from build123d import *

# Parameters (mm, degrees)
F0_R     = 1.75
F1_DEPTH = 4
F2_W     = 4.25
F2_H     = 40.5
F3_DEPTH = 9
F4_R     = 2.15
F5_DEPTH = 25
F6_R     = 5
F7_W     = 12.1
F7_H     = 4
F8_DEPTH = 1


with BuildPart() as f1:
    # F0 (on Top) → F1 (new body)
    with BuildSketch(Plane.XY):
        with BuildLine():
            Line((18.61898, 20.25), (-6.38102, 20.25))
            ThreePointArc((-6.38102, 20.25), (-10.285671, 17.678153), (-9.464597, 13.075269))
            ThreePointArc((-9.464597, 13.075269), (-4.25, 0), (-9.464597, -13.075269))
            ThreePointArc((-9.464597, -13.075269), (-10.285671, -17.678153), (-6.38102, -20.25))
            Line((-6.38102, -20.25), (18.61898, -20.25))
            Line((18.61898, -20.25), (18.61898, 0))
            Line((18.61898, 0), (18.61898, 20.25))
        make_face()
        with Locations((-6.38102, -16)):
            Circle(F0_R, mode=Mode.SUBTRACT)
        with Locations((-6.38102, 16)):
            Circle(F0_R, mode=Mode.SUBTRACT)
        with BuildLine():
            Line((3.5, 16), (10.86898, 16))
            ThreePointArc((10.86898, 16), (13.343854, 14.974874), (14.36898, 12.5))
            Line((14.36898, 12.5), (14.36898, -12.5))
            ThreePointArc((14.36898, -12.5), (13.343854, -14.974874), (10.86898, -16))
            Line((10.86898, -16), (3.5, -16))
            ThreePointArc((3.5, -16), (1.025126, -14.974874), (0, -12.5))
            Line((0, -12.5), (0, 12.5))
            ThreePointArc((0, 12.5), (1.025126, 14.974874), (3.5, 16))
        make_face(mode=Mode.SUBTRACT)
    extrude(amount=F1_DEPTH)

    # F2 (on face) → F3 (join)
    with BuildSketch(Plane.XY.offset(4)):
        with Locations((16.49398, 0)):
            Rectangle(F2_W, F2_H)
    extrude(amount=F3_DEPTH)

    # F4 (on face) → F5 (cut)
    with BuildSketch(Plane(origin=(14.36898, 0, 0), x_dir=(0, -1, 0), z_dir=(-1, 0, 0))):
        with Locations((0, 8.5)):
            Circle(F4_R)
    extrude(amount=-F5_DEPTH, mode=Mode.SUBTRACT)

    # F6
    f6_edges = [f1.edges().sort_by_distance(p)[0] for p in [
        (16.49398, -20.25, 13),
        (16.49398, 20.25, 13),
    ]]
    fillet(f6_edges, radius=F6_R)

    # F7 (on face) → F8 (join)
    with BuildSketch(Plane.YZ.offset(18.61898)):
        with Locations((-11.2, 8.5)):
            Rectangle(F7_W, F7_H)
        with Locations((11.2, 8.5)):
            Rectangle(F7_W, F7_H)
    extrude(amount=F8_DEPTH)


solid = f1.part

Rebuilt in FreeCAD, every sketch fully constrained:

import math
import FreeCAD as App
import Part
import Sketcher
from FreeCAD import Vector
Q = App.Units.Quantity


def edges_at(feature, points):
    """Names of the edges that pass closest to the given points."""
    edges = feature.Shape.Edges
    near = lambda p: min(range(len(edges)), key=lambda i: edges[i].distToShape(Part.Vertex(*p))[0])
    return sorted({f"Edge{near(p) + 1}" for p in points})

doc = App.newDocument("Part")
body = doc.addObject("PartDesign::Body", "Body")

sketch1 = doc.addObject("Sketcher::SketchObject", "Sketch")
body.addObject(sketch1)
sketch1.AttachmentSupport = (doc.XY_Plane, [""])
sketch1.MapMode = "FlatFace"
sketch1.addGeometry(Part.LineSegment(Vector(18.61898, 20.25, 0), Vector(-6.38102, 20.25, 0)), False)
sketch1.addGeometry(Part.ArcOfCircle(Part.Circle(Vector(-6.38102, 16, 0), Vector(0, 0, 1), 4.25), math.radians(90.000006), math.radians(223.485578)), False)
sketch1.addGeometry(Part.ArcOfCircle(Part.Circle(Vector(-23.25, 0, 0), Vector(0, 0, 1), 19), math.radians(-43.485586), math.radians(43.485586)), False)
sketch1.addGeometry(Part.ArcOfCircle(Part.Circle(Vector(-6.38102, -16, 0), Vector(0, 0, 1), 4.25), math.radians(136.514422), math.radians(269.999994)), False)
sketch1.addGeometry(Part.LineSegment(Vector(-6.38102, -20.25, 0), Vector(18.61898, -20.25, 0)), False)
sketch1.addGeometry(Part.LineSegment(Vector(18.61898, -20.25, 0), Vector(18.61898, 20.25, 0)), False)
sketch1.addGeometry(Part.Circle(Vector(-6.38102, -16, 0), Vector(0, 0, 1), 1.75), False)
sketch1.addGeometry(Part.Circle(Vector(-6.38102, 16, 0), Vector(0, 0, 1), 1.75), False)
sketch1.addGeometry(Part.ArcOfCircle(Part.Circle(Vector(3.499999, 12.500001, 0), Vector(0, 0, 1), 3.499999), math.radians(89.999985), math.radians(180.000015)), False)
sketch1.addGeometry(Part.LineSegment(Vector(3.5, 16, 0), Vector(10.86898, 16, 0)), False)
sketch1.addGeometry(Part.ArcOfCircle(Part.Circle(Vector(10.868981, 12.500001, 0), Vector(0, 0, 1), 3.499999), math.radians(-0.000015), math.radians(90.000015)), False)
sketch1.addGeometry(Part.LineSegment(Vector(14.36898, 12.5, 0), Vector(14.36898, -12.5, 0)), False)
sketch1.addGeometry(Part.ArcOfCircle(Part.Circle(Vector(10.868981, -12.500001, 0), Vector(0, 0, 1), 3.499999), math.radians(-90.000015), math.radians(0.000015)), False)
sketch1.addGeometry(Part.LineSegment(Vector(10.86898, -16, 0), Vector(3.5, -16, 0)), False)
sketch1.addGeometry(Part.ArcOfCircle(Part.Circle(Vector(3.499999, -12.500001, 0), Vector(0, 0, 1), 3.499999), math.radians(179.999985), math.radians(270.000015)), False)
sketch1.addGeometry(Part.LineSegment(Vector(0, -12.5, 0), Vector(0, 12.5, 0)), False)
sketch1.addConstraint(Sketcher.Constraint("Tangent", 0, 2, 1, 1))
sketch1.addConstraint(Sketcher.Constraint("Tangent", 1, 2, 2, 2))
sketch1.addConstraint(Sketcher.Constraint("Tangent", 2, 1, 3, 1))
sketch1.addConstraint(Sketcher.Constraint("Tangent", 3, 2, 4, 1))
sketch1.addConstraint(Sketcher.Constraint("Coincident", 4, 2, 5, 1))
sketch1.addConstraint(Sketcher.Constraint("Coincident", 5, 2, 0, 1))
sketch1.addConstraint(Sketcher.Constraint("Tangent", 8, 1, 9, 1))
sketch1.addConstraint(Sketcher.Constraint("Tangent", 9, 2, 10, 2))
sketch1.addConstraint(Sketcher.Constraint("Tangent", 10, 1, 11, 1))
sketch1.addConstraint(Sketcher.Constraint("Tangent", 11, 2, 12, 2))
sketch1.addConstraint(Sketcher.Constraint("Tangent", 12, 1, 13, 1))
sketch1.addConstraint(Sketcher.Constraint("Tangent", 13, 2, 14, 2))
sketch1.addConstraint(Sketcher.Constraint("Tangent", 14, 1, 15, 1))
sketch1.addConstraint(Sketcher.Constraint("Tangent", 15, 2, 8, 2))
sketch1.addConstraint(Sketcher.Constraint("Horizontal", 0))
sketch1.addConstraint(Sketcher.Constraint("Horizontal", 4))
sketch1.addConstraint(Sketcher.Constraint("Vertical", 5))
sketch1.addConstraint(Sketcher.Constraint("Horizontal", 9))
sketch1.addConstraint(Sketcher.Constraint("Vertical", 11))
sketch1.addConstraint(Sketcher.Constraint("Horizontal", 13))
sketch1.addConstraint(Sketcher.Constraint("Vertical", 15))
sketch1.addConstraint(Sketcher.Constraint("Coincident", 6, 3, 3, 3))
sketch1.addConstraint(Sketcher.Constraint("Coincident", 7, 3, 1, 3))
sketch1.addConstraint(Sketcher.Constraint("Equal", 1, 3))
sketch1.addConstraint(Sketcher.Constraint("Equal", 6, 7))
sketch1.addConstraint(Sketcher.Constraint("Equal", 8, 10))
sketch1.addConstraint(Sketcher.Constraint("Equal", 10, 12))
sketch1.addConstraint(Sketcher.Constraint("Equal", 12, 14))
sketch1.addConstraint(Sketcher.Constraint("Symmetric", 14, 1, 15, 2, -1, 1))
sketch1.addConstraint(Sketcher.Constraint("Symmetric", 1, 3, 3, 3, -1))
sketch1.addConstraint(Sketcher.Constraint("Horizontal", 7, 3, 8, 1))
sketch1.addConstraint(Sketcher.Constraint("Equal", 4, 11))
sketch1.addConstraint(Sketcher.Constraint("Radius", 2, Q("19 mm")))
sketch1.addConstraint(Sketcher.Constraint("Diameter", 6, Q("3.5 mm")))
sketch1.addConstraint(Sketcher.Constraint("Radius", 8, Q("3.499999 mm")))
sketch1.addConstraint(Sketcher.Constraint("DistanceX", 0, 2, 0, 1, Q("25 mm")))
sketch1.addConstraint(Sketcher.Constraint("Radius", 1, Q("4.25 mm")))
sketch1.addConstraint(Sketcher.Constraint("DistanceX", 2, 3, -1, 1, Q("23.25 mm")))
sketch1.addConstraint(Sketcher.Constraint("DistanceX", 1, 3, 10, 3, Q("17.25 mm")))
pad1 = doc.addObject("PartDesign::Pad", "Pad")
body.addObject(pad1)
pad1.Profile = sketch1
pad1.Length = 4

sketch2 = doc.addObject("Sketcher::SketchObject", "Sketch001")
body.addObject(sketch2)
sketch2.AttachmentSupport = (doc.XY_Plane, [""])
sketch2.MapMode = "FlatFace"
sketch2.AttachmentOffset = App.Placement(Vector(0, 0, 4), App.Rotation())
sketch2.addGeometry(Part.LineSegment(Vector(14.36898, 20.25, 0), Vector(14.36898, -20.25, 0)), False)
sketch2.addGeometry(Part.LineSegment(Vector(14.36898, -20.25, 0), Vector(18.61898, -20.25, 0)), False)
sketch2.addGeometry(Part.LineSegment(Vector(18.61898, -20.25, 0), Vector(18.61898, 20.25, 0)), False)
sketch2.addGeometry(Part.LineSegment(Vector(18.61898, 20.25, 0), Vector(14.36898, 20.25, 0)), False)
sketch2.addConstraint(Sketcher.Constraint("Coincident", 0, 2, 1, 1))
sketch2.addConstraint(Sketcher.Constraint("Coincident", 1, 2, 2, 1))
sketch2.addConstraint(Sketcher.Constraint("Coincident", 2, 2, 3, 1))
sketch2.addConstraint(Sketcher.Constraint("Coincident", 3, 2, 0, 1))
sketch2.addConstraint(Sketcher.Constraint("Vertical", 0))
sketch2.addConstraint(Sketcher.Constraint("Horizontal", 1))
sketch2.addConstraint(Sketcher.Constraint("Vertical", 2))
sketch2.addConstraint(Sketcher.Constraint("Horizontal", 3))
sketch2.addConstraint(Sketcher.Constraint("DistanceY", 0, 2, 0, 1, Q("40.5 mm")))
sketch2.addConstraint(Sketcher.Constraint("DistanceX", 1, 1, 1, 2, Q("4.25 mm")))
sketch2.addConstraint(Sketcher.Constraint("DistanceY", 0, 2, -1, 1, Q("20.25 mm")))
sketch2.addConstraint(Sketcher.Constraint("DistanceX", -1, 1, 0, 2, Q("14.36898 mm")))
pad2 = doc.addObject("PartDesign::Pad", "Pad001")
body.addObject(pad2)
pad2.Profile = sketch2
pad2.Length = 9

sketch3 = doc.addObject("Sketcher::SketchObject", "Sketch002")
body.addObject(sketch3)
sketch3.AttachmentSupport = (doc.YZ_Plane, [""])
sketch3.MapMode = "FlatFace"
sketch3.AttachmentOffset = App.Placement(Vector(0, 0, 14.36898), App.Rotation())
sketch3.addGeometry(Part.Circle(Vector(0, 8.5, 0), Vector(0, 0, 1), 2.15), False)
sketch3.addConstraint(Sketcher.Constraint("PointOnObject", 0, 3, -2))
sketch3.addConstraint(Sketcher.Constraint("Diameter", 0, Q("4.3 mm")))
sketch3.addConstraint(Sketcher.Constraint("DistanceY", -1, 1, 0, 3, Q("8.5 mm")))
pocket1 = doc.addObject("PartDesign::Pocket", "Pocket")
body.addObject(pocket1)
pocket1.Profile = sketch3
pocket1.Length = 25
pocket1.Reversed = True
doc.recompute()

fillet = doc.addObject("PartDesign::Fillet", "Fillet")
body.addObject(fillet)
fillet.Base = (pocket1, edges_at(pocket1, [(16.494, -20.25, 13), (16.494, 20.25, 13)]))
fillet.Radius = 5

sketch4 = doc.addObject("Sketcher::SketchObject", "Sketch003")
body.addObject(sketch4)
sketch4.AttachmentSupport = (doc.YZ_Plane, [""])
sketch4.MapMode = "FlatFace"
sketch4.AttachmentOffset = App.Placement(Vector(0, 0, 18.61898), App.Rotation())
sketch4.addGeometry(Part.LineSegment(Vector(-17.25, 10.5, 0), Vector(-17.25, 6.5, 0)), False)
sketch4.addGeometry(Part.LineSegment(Vector(-17.25, 6.5, 0), Vector(-5.15, 6.5, 0)), False)
sketch4.addGeometry(Part.LineSegment(Vector(-5.15, 6.5, 0), Vector(-5.15, 10.5, 0)), False)
sketch4.addGeometry(Part.LineSegment(Vector(-5.15, 10.5, 0), Vector(-17.25, 10.5, 0)), False)
sketch4.addGeometry(Part.LineSegment(Vector(5.15, 10.5, 0), Vector(5.15, 6.5, 0)), False)
sketch4.addGeometry(Part.LineSegment(Vector(5.15, 6.5, 0), Vector(17.25, 6.5, 0)), False)
sketch4.addGeometry(Part.LineSegment(Vector(17.25, 6.5, 0), Vector(17.25, 10.5, 0)), False)
sketch4.addGeometry(Part.LineSegment(Vector(17.25, 10.5, 0), Vector(5.15, 10.5, 0)), False)
sketch4.addConstraint(Sketcher.Constraint("Coincident", 0, 2, 1, 1))
sketch4.addConstraint(Sketcher.Constraint("Coincident", 1, 2, 2, 1))
sketch4.addConstraint(Sketcher.Constraint("Coincident", 2, 2, 3, 1))
sketch4.addConstraint(Sketcher.Constraint("Coincident", 3, 2, 0, 1))
sketch4.addConstraint(Sketcher.Constraint("Coincident", 4, 2, 5, 1))
sketch4.addConstraint(Sketcher.Constraint("Coincident", 5, 2, 6, 1))
sketch4.addConstraint(Sketcher.Constraint("Coincident", 6, 2, 7, 1))
sketch4.addConstraint(Sketcher.Constraint("Coincident", 7, 2, 4, 1))
sketch4.addConstraint(Sketcher.Constraint("Vertical", 0))
sketch4.addConstraint(Sketcher.Constraint("Horizontal", 1))
sketch4.addConstraint(Sketcher.Constraint("Vertical", 2))
sketch4.addConstraint(Sketcher.Constraint("Horizontal", 3))
sketch4.addConstraint(Sketcher.Constraint("Vertical", 4))
sketch4.addConstraint(Sketcher.Constraint("Horizontal", 5))
sketch4.addConstraint(Sketcher.Constraint("Vertical", 6))
sketch4.addConstraint(Sketcher.Constraint("Horizontal", 7))
sketch4.addConstraint(Sketcher.Constraint("Symmetric", 1, 2, 4, 2, -2))
sketch4.addConstraint(Sketcher.Constraint("Symmetric", 3, 2, 6, 2, -2))
sketch4.addConstraint(Sketcher.Constraint("DistanceY", 0, 2, 0, 1, Q("4 mm")))
sketch4.addConstraint(Sketcher.Constraint("DistanceX", 1, 1, 1, 2, Q("12.1 mm")))
sketch4.addConstraint(Sketcher.Constraint("DistanceY", -1, 1, 0, 2, Q("6.5 mm")))
sketch4.addConstraint(Sketcher.Constraint("DistanceX", 1, 2, 4, 2, Q("10.3 mm")))
pad3 = doc.addObject("PartDesign::Pad", "Pad002")
body.addObject(pad3)
pad3.Profile = sketch4
pad3.Length = 1

doc.recompute()
